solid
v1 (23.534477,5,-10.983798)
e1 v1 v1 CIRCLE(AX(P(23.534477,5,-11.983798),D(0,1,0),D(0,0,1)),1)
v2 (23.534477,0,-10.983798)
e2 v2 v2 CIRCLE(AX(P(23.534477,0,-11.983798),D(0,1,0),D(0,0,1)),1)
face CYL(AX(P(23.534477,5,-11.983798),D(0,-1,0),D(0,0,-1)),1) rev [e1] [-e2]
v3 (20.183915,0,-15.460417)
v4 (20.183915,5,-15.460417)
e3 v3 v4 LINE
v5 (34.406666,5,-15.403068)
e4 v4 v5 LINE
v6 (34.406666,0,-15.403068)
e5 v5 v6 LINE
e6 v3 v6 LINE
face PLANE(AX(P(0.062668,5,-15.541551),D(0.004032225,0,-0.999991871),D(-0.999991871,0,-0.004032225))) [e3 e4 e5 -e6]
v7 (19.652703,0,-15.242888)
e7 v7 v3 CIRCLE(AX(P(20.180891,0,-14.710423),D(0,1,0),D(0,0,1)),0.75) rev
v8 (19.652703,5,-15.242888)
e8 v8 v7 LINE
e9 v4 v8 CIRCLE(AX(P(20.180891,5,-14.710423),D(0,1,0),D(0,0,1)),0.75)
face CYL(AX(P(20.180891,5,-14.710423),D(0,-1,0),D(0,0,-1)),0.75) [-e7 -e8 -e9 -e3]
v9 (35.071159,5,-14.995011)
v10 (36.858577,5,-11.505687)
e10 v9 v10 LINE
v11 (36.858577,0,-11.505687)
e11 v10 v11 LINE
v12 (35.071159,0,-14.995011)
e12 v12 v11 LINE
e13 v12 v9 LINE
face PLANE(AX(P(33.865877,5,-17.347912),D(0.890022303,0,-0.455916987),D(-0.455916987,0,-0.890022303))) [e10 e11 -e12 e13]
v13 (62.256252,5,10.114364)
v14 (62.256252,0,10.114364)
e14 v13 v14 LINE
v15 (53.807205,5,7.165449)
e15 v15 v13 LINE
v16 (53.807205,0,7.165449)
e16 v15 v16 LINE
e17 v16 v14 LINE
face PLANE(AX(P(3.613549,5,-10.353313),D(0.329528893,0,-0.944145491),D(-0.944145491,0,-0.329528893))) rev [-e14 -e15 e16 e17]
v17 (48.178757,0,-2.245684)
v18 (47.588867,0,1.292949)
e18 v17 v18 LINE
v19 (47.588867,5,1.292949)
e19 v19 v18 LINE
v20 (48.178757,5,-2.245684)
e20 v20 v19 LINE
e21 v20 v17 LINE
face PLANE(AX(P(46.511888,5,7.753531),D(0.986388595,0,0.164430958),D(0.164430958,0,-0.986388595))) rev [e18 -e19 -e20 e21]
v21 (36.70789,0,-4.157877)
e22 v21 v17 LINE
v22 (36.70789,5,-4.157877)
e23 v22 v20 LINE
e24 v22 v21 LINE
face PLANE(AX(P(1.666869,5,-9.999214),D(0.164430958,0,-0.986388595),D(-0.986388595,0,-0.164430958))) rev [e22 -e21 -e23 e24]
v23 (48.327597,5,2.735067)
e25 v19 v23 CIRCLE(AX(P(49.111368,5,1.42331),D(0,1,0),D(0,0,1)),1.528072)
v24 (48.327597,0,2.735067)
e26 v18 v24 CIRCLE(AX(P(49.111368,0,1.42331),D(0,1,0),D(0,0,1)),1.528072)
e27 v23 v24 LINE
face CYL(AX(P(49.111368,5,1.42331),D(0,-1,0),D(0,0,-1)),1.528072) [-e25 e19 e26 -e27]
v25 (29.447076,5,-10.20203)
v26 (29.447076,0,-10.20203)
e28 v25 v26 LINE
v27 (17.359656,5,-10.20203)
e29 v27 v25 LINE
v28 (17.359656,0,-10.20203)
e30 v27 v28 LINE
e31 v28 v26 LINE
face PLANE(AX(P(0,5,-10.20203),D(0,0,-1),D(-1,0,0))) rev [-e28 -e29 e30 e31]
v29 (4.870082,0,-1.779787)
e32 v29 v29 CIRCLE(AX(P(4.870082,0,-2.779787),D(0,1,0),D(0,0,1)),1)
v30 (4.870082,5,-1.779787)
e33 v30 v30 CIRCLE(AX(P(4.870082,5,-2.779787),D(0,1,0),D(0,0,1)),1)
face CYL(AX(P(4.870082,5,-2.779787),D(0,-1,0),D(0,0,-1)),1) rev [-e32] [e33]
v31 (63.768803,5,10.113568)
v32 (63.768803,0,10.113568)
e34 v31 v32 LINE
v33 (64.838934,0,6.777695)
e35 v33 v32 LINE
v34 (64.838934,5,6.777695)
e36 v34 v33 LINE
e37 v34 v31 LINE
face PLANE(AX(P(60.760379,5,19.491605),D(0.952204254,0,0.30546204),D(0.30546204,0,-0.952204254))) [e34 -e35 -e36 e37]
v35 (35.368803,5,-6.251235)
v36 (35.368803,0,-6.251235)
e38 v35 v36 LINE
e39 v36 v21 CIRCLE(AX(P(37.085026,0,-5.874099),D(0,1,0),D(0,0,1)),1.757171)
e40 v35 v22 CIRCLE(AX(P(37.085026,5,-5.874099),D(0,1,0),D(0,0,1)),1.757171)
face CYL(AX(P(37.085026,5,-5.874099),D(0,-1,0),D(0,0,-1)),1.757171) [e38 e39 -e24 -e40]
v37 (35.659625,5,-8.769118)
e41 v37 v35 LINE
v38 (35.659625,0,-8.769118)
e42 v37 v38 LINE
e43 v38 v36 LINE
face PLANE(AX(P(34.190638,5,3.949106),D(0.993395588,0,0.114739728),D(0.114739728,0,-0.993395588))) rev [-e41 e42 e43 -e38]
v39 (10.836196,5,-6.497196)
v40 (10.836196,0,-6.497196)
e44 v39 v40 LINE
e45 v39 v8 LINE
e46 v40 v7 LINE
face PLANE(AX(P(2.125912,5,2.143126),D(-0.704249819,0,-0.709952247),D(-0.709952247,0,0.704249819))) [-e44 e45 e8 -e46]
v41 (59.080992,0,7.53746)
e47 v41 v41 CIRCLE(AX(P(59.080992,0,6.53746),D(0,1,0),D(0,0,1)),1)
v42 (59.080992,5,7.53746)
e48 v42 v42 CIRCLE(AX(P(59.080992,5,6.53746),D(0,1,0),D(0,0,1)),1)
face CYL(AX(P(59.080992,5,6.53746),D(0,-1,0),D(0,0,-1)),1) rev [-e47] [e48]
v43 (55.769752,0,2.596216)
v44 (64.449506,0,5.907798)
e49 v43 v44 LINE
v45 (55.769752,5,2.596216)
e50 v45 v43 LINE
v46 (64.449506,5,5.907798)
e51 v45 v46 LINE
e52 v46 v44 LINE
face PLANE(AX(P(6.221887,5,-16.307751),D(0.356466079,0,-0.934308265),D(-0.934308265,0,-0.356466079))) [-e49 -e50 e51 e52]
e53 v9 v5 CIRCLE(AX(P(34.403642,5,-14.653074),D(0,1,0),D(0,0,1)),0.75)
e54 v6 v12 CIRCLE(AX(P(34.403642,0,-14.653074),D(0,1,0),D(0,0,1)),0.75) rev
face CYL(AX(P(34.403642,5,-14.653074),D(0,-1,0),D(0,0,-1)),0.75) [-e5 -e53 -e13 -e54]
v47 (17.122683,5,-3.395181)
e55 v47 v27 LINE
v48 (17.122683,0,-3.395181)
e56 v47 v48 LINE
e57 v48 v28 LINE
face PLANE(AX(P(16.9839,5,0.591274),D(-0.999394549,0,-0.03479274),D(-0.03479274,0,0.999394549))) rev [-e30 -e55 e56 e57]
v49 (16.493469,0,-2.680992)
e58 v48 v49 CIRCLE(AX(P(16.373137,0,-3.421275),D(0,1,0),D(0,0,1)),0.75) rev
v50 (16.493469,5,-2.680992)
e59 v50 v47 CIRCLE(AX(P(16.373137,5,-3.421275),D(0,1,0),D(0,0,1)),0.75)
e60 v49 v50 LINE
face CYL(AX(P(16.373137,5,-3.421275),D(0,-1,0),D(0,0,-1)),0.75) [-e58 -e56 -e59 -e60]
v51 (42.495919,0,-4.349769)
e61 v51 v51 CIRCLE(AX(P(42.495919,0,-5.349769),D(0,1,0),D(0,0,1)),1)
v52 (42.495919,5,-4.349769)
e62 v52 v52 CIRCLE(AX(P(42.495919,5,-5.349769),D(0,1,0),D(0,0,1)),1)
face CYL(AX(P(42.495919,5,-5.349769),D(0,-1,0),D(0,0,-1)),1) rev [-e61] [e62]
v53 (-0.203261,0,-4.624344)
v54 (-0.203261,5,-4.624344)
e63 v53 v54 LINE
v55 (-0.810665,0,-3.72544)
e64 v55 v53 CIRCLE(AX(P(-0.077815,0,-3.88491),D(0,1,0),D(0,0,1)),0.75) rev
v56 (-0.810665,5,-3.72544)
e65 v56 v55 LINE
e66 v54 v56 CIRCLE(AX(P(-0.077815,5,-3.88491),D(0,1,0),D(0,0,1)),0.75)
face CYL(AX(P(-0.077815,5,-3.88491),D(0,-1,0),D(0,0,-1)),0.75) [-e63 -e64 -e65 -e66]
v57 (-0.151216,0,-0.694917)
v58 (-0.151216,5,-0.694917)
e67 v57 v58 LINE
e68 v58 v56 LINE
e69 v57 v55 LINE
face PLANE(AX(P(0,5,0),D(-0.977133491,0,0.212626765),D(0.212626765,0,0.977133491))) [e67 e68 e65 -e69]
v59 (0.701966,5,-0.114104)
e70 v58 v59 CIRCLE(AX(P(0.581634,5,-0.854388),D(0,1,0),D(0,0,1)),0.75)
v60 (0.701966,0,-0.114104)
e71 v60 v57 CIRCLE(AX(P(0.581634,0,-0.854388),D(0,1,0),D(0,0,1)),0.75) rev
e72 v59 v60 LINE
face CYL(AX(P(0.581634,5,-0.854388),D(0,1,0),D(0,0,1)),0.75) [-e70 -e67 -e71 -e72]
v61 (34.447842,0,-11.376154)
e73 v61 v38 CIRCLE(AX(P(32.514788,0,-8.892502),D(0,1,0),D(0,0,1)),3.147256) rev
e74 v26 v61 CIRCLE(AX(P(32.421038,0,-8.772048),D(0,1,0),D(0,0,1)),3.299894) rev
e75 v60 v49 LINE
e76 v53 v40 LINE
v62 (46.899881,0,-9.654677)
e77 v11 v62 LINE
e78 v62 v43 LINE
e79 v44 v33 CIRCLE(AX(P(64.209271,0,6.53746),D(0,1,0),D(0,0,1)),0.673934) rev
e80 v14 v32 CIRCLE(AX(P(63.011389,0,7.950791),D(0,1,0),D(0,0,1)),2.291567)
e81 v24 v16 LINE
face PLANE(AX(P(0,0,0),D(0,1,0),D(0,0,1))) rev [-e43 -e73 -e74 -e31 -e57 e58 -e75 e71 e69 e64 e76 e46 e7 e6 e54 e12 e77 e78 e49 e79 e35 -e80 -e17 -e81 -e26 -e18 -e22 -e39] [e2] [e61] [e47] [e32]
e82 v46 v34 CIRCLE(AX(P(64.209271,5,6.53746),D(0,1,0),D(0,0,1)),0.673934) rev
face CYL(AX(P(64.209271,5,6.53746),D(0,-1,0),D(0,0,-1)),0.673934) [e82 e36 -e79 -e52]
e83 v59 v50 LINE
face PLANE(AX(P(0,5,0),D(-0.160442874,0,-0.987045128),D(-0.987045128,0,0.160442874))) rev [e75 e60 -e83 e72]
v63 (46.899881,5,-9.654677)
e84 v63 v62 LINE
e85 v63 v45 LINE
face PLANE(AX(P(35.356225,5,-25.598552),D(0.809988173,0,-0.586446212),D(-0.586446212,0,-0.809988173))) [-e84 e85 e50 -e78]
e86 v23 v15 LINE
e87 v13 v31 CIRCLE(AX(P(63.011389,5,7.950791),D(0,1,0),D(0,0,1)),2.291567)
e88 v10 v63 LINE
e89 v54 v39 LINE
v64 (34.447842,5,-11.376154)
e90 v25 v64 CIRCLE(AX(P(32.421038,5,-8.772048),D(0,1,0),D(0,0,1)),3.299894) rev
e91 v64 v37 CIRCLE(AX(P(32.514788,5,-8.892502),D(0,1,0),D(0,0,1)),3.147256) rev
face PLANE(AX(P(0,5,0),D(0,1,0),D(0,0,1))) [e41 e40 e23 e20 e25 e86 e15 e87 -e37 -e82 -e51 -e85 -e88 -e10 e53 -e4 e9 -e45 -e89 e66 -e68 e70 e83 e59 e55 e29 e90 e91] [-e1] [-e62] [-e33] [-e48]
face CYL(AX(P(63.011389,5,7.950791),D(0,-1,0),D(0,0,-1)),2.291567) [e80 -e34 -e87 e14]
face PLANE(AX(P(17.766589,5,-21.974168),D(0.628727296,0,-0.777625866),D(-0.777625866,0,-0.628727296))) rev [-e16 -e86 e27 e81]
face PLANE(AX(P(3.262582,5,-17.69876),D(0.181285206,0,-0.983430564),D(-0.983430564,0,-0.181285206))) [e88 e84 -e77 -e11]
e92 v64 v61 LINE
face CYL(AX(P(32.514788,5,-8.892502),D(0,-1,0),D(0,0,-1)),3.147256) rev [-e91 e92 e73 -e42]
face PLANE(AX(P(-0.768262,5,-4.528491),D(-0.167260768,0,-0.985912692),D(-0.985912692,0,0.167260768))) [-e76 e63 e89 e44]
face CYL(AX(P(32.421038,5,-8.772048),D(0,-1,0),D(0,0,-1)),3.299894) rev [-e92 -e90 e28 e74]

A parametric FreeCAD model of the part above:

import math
import FreeCAD as App
import Part
import Sketcher


def edges_at(feature, points):
    """Names of the edges that pass closest to the given points."""
    edges = feature.Shape.Edges
    near = lambda p: min(range(len(edges)), key=lambda i: edges[i].distToShape(Part.Vertex(*p))[0])
    return sorted({f"Edge{near(p) + 1}" for p in points})

doc = App.newDocument("Part")
body = doc.addObject("PartDesign::Body", "Body")

sketch1 = body.newObject("Sketcher::SketchObject", "Sketch")
sketch1.AttachmentSupport = (doc.getObject("XZ_Plane"), [""])
sketch1.MapMode = "FlatFace"
sketch1.addGeometry([
    Part.LineSegment(App.Vector(17.359656, -10.20203, 0), App.Vector(29.447076, -10.20203, 0)),
    Part.ArcOfCircle(Part.Circle(App.Vector(32.421038, -8.772048, 0), App.Vector(0, 0, 1), 3.299894), math.radians(-154.320169), math.radians(-52.105988)),
    Part.ArcOfCircle(Part.Circle(App.Vector(32.514788, -8.892502, 0), App.Vector(0, 0, 1), 3.147256), math.radians(-52.105988), math.radians(2.246779)),
    Part.LineSegment(App.Vector(35.659625, -8.769118, 0), App.Vector(35.368803, -6.251235, 0)),
    Part.ArcOfCircle(Part.Circle(App.Vector(37.085026, -5.874099, 0), App.Vector(0, 0, 1), 1.757171), math.radians(102.393636), math.radians(192.393636)),
    Part.LineSegment(App.Vector(36.70789, -4.157877, 0), App.Vector(48.178757, -2.245684, 0)),
    Part.LineSegment(App.Vector(48.178757, -2.245684, 0), App.Vector(47.588867, 1.292949, 0)),
    Part.ArcOfCircle(Part.Circle(App.Vector(49.111368, 1.42331, 0), App.Vector(0, 0, 1), 1.528072), math.radians(120.858197), math.radians(184.893902)),
    Part.LineSegment(App.Vector(48.327597, 2.735067, 0), App.Vector(53.807205, 7.165449, 0)),
    Part.LineSegment(App.Vector(53.807205, 7.165449, 0), App.Vector(62.256252, 10.114364, 0)),
    Part.ArcOfCircle(Part.Circle(App.Vector(63.011389, 7.950791, 0), App.Vector(0, 0, 1), 2.291567), math.radians(70.699524), math.radians(109.240184)),
    Part.LineSegment(App.Vector(63.768803, 10.113568, 0), App.Vector(64.838934, 6.777695, 0)),
    Part.ArcOfCircle(Part.Circle(App.Vector(64.209271, 6.53746, 0), App.Vector(0, 0, 1), 0.673934), math.radians(-69.116676), math.radians(20.883324)),
    Part.LineSegment(App.Vector(64.449506, 5.907798, 0), App.Vector(55.769752, 2.596216, 0)),
    Part.LineSegment(App.Vector(55.769752, 2.596216, 0), App.Vector(46.899881, -9.654677, 0)),
    Part.LineSegment(App.Vector(46.899881, -9.654677, 0), App.Vector(36.858577, -11.505687, 0)),
    Part.LineSegment(App.Vector(36.858577, -11.505687, 0), App.Vector(34.863074, -15.401227, 0)),
    Part.LineSegment(App.Vector(34.863074, -15.401227, 0), App.Vector(19.873257, -15.46167, 0)),
    Part.LineSegment(App.Vector(19.873257, -15.46167, 0), App.Vector(10.836196, -6.497196, 0)),
    Part.LineSegment(App.Vector(10.836196, -6.497196, 0), App.Vector(-0.97768, -4.492963, 0)),
    Part.LineSegment(App.Vector(-0.97768, -4.492963, 0), App.Vector(0, 0, 0)),
    Part.LineSegment(App.Vector(0, 0, 0), App.Vector(17.101259, -2.779787, 0)),
    Part.LineSegment(App.Vector(17.101259, -2.779787, 0), App.Vector(17.359656, -10.20203, 0)),
    Part.Circle(App.Vector(59.080992, 6.53746, 0), App.Vector(0, 0, 1), 1),
    Part.Circle(App.Vector(4.870082, -2.779787, 0), App.Vector(0, 0, 1), 1),
    Part.Circle(App.Vector(23.534477, -11.983798, 0), App.Vector(0, 0, 1), 1),
    Part.Circle(App.Vector(42.495919, -5.349769, 0), App.Vector(0, 0, 1), 1),
], False)
sketch1.addConstraint([
    Sketcher.Constraint("Coincident", 0, 2, 1, 1),
    Sketcher.Constraint("Coincident", 1, 2, 2, 1),
    Sketcher.Constraint("Coincident", 2, 2, 3, 1),
    Sketcher.Constraint("Coincident", 3, 2, 4, 2),
    Sketcher.Constraint("Coincident", 4, 1, 5, 1),
    Sketcher.Constraint("Coincident", 5, 2, 6, 1),
    Sketcher.Constraint("Coincident", 6, 2, 7, 2),
    Sketcher.Constraint("Coincident", 7, 1, 8, 1),
    Sketcher.Constraint("Coincident", 8, 2, 9, 1),
    Sketcher.Constraint("Coincident", 9, 2, 10, 2),
    Sketcher.Constraint("Coincident", 10, 1, 11, 1),
    Sketcher.Constraint("Coincident", 11, 2, 12, 2),
    Sketcher.Constraint("Coincident", 12, 1, 13, 1),
    Sketcher.Constraint("Coincident", 13, 2, 14, 1),
    Sketcher.Constraint("Coincident", 14, 2, 15, 1),
    Sketcher.Constraint("Coincident", 15, 2, 16, 1),
    Sketcher.Constraint("Coincident", 16, 2, 17, 1),
    Sketcher.Constraint("Coincident", 17, 2, 18, 1),
    Sketcher.Constraint("Coincident", 18, 2, 19, 1),
    Sketcher.Constraint("Coincident", 19, 2, 20, 1),
    Sketcher.Constraint("Coincident", 20, 2, 21, 1),
    Sketcher.Constraint("Coincident", 21, 2, 22, 1),
    Sketcher.Constraint("Coincident", 22, 2, 0, 1),
    Sketcher.Constraint("Horizontal", 0),
    Sketcher.Constraint("Coincident", 20, 2, -1, 1),
    Sketcher.Constraint("Diameter", 23, 2.0),
    Sketcher.Constraint("Diameter", 24, 2.0),
    Sketcher.Constraint("Diameter", 25, 2.0),
    Sketcher.Constraint("Diameter", 26, 2.0),
    Sketcher.Constraint("Radius", 4, 1.757171),
    Sketcher.Constraint("Radius", 7, 1.528072),
    Sketcher.Constraint("Radius", 1, 3.299894),
    Sketcher.Constraint("Radius", 2, 3.147256),
    Sketcher.Constraint("Radius", 10, 2.291567),
    Sketcher.Constraint("Radius", 12, 0.673934),
    Sketcher.Constraint("DistanceX", 21, 2, 17, 2, 2.771998),
    Sketcher.Constraint("Distance", 16, 4.376901),
    Sketcher.Constraint("DistanceX", 0, 1, 0, 2, 12.08742),
    Sketcher.Constraint("DistanceY", 2, 3, -1, 1, 8.892502),
    Sketcher.Constraint("DistanceY", 4, 3, -1, 1, 5.874099),
    Sketcher.Constraint("DistanceX", 2, 3, 10, 3, 30.496601),
    Sketcher.Constraint("DistanceY", 25, 3, 4, 3, 6.109699),
    Sketcher.Constraint("DistanceX", 25, 3, 0, 2, 5.912598),
    Sketcher.Constraint("DistanceX", 2, 2, 4, 3, 1.4254),
    Sketcher.Constraint("DistanceX", 6, 2, 7, 3, 1.522501),
    Sketcher.Constraint("DistanceY", 6, 2, 8, 2, 5.8725),
    Sketcher.Constraint("DistanceX", 8, 2, 10, 1, 9.961598),
    Sketcher.Constraint("DistanceX", 22, 2, 17, 2, 2.513602),
    Sketcher.Constraint("Distance", 14, 15.124781),
    Sketcher.Constraint("Distance", 17, 14.989938),
    Sketcher.Constraint("Distance", 18, 12.729111),
    Sketcher.Constraint("Distance", 19, 11.98268),
    Sketcher.Constraint("Distance", 21, 17.325711),
    Sketcher.Constraint("Distance", 22, 7.42674),
    Sketcher.Constraint("DistanceY", 1, 3, -1, 1, 8.772048),
    Sketcher.Constraint("DistanceX", -1, 1, 2, 3, 32.514788),
    Sketcher.Constraint("DistanceX", -1, 1, 7, 3, 49.111368),
    Sketcher.Constraint("DistanceY", -1, 1, 7, 3, 1.42331),
    Sketcher.Constraint("DistanceY", -1, 1, 10, 3, 7.950791),
    Sketcher.Constraint("DistanceX", -1, 1, 12, 3, 64.209271),
    Sketcher.Constraint("DistanceY", -1, 1, 12, 3, 6.53746),
    Sketcher.Constraint("DistanceY", -1, 1, 23, 3, 6.53746),
    Sketcher.Constraint("DistanceX", -1, 1, 24, 3, 4.870082),
    Sketcher.Constraint("DistanceX", -1, 1, 26, 3, 42.495919),
    Sketcher.Constraint("DistanceY", 26, 3, -1, 1, 5.349769),
    Sketcher.Constraint("DistanceX", -1, 1, 1, 2, 34.447842),
    Sketcher.Constraint("DistanceX", -1, 1, 4, 1, 36.70789),
    Sketcher.Constraint("DistanceX", -1, 1, 9, 2, 62.256252),
    Sketcher.Constraint("DistanceX", -1, 1, 13, 2, 55.769752),
    Sketcher.Constraint("DistanceX", -1, 1, 14, 2, 46.899881),
    Sketcher.Constraint("DistanceY", 17, 2, -1, 1, 15.46167),
    Sketcher.Constraint("DistanceX", 19, 2, -1, 1, 0.97768),
    Sketcher.Constraint("DistanceX", 23, 3, 12, 3, 5.128279),
    Sketcher.Constraint("DistanceY", 1, 3, 24, 3, 5.992261),
    Sketcher.Constraint("DistanceX", 25, 3, 4, 3, 13.550548),
    Sketcher.Constraint("DistanceX", 3, 2, 2, 2, 0.290822),
    Sketcher.Constraint("DistanceX", 5, 2, 7, 3, 0.932611),
    Sketcher.Constraint("DistanceY", 3, 2, 5, 2, 4.005552),
    Sketcher.Constraint("DistanceX", 7, 1, 7, 3, 0.783771),
    Sketcher.Constraint("DistanceX", 6, 2, 8, 2, 6.218338),
    Sketcher.Constraint("DistanceX", 10, 1, 11, 2, 1.07013),
    Sketcher.Constraint("DistanceY", 12, 1, 10, 1, 4.20577),
    Sketcher.Constraint("DistanceY", 13, 2, 7, 1, 0.138851),
    Sketcher.Constraint("DistanceX", 2, 2, 15, 2, 1.198952),
    Sketcher.Constraint("DistanceY", 15, 2, 2, 2, 2.736569),
    Sketcher.Constraint("DistanceY", 18, 2, 24, 3, 3.717409),
])
pad1 = body.newObject("PartDesign::Pad", "Pad")
pad1.Profile = sketch1
pad1.Length = 5
pad1.Reversed = True
doc.recompute()

fillet = body.newObject("PartDesign::Fillet", "Fillet")
fillet.Base = (pad1, edges_at(pad1, [
    (17.101, 2.5, -2.78),
    (0, 2.5, 0),
    (-0.978, 2.5, -4.493),
    (19.873, 2.5, -15.462),
    (34.863, 2.5, -15.401),
]))
fillet.Radius = 0.75

doc.recompute()
